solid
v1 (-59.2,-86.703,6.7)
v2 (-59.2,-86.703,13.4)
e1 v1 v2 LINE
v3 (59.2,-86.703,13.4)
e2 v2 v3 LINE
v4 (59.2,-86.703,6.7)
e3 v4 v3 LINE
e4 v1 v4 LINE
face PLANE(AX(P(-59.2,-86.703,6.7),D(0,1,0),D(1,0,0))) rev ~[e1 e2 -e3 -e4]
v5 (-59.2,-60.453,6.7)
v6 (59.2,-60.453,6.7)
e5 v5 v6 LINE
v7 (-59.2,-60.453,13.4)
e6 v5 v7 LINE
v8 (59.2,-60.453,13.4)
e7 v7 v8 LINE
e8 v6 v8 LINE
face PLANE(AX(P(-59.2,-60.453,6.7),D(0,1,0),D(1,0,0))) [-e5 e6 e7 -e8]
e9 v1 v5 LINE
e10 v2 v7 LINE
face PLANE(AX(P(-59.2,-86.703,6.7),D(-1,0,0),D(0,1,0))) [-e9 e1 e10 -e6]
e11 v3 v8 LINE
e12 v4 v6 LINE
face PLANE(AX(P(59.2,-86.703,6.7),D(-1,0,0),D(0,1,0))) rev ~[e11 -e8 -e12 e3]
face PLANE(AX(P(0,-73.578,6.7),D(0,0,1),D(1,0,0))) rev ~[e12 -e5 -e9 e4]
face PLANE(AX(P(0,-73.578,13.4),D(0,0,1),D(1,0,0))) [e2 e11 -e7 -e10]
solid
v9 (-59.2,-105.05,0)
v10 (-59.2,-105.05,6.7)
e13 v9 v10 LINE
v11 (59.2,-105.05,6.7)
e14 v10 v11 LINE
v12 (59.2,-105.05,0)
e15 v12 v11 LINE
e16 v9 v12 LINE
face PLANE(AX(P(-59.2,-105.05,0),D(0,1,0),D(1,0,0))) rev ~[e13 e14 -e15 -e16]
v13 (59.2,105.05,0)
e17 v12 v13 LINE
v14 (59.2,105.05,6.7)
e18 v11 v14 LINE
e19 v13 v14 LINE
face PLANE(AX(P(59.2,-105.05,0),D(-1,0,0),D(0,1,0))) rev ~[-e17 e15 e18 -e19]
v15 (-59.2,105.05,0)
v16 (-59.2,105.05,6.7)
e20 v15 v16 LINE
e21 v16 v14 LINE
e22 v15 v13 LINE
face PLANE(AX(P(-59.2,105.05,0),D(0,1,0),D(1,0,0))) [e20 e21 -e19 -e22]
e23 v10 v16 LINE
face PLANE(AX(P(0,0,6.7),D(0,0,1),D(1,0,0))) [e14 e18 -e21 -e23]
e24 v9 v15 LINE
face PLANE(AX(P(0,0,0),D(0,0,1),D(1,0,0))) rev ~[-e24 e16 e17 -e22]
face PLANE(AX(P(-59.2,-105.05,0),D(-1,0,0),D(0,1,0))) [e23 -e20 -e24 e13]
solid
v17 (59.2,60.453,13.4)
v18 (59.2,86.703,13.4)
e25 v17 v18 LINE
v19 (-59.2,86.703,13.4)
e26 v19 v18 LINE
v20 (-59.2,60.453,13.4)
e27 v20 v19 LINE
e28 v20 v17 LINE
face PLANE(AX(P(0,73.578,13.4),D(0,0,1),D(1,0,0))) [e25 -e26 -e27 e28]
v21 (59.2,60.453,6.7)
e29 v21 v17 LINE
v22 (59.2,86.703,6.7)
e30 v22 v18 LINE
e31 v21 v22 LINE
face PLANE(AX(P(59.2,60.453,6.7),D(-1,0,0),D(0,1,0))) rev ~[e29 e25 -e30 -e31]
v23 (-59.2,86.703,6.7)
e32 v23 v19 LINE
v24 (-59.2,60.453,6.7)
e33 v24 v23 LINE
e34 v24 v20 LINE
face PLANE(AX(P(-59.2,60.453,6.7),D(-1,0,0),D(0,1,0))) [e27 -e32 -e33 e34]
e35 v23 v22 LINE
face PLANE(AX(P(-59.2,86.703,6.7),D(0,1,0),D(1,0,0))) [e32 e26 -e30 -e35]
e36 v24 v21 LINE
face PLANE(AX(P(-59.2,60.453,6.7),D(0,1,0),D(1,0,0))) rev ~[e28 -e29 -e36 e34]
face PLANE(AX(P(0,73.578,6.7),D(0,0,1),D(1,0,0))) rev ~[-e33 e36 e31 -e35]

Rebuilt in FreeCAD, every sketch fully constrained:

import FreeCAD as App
import Part
import Sketcher
Q = App.Units.Quantity

doc = App.newDocument("Part")
body = doc.addObject("PartDesign::Body", "Body")

sketch1 = body.newObject("Sketcher::SketchObject", "Sketch")
sketch1.AttachmentSupport = (doc.getObject("XY_Plane"), [""])
sketch1.MapMode = "FlatFace"
sketch1.addGeometry([
    Part.LineSegment(App.Vector(-59, 105, 0), App.Vector(-59, -105, 0)),
    Part.LineSegment(App.Vector(-59, -105, 0), App.Vector(59, -105, 0)),
    Part.LineSegment(App.Vector(59, -105, 0), App.Vector(59, 105, 0)),
    Part.LineSegment(App.Vector(59, 105, 0), App.Vector(-59, 105, 0)),
], False)
sketch1.addConstraint([
    Sketcher.Constraint("Coincident", 0, 2, 1, 1),
    Sketcher.Constraint("Coincident", 1, 2, 2, 1),
    Sketcher.Constraint("Coincident", 2, 2, 3, 1),
    Sketcher.Constraint("Coincident", 3, 2, 0, 1),
    Sketcher.Constraint("Vertical", 0),
    Sketcher.Constraint("Horizontal", 1),
    Sketcher.Constraint("Vertical", 2),
    Sketcher.Constraint("Horizontal", 3),
    Sketcher.Constraint("Symmetric", 0, 2, 2, 2, -1, 1),
    Sketcher.Constraint("DistanceX", 1, 1, 1, 2, Q("118.4 mm")),
    Sketcher.Constraint("DistanceY", 0, 2, 0, 1, Q("210.1 mm")),
])
pad1 = body.newObject("PartDesign::Pad", "Pad")
pad1.Profile = sketch1
pad1.Length = 6.7
body2 = doc.addObject("PartDesign::Body", "Body001")

sketch2 = body2.newObject("Sketcher::SketchObject", "Sketch001")
sketch2.AttachmentSupport = (doc.getObject("XY_Plane001"), [""])
sketch2.MapMode = "FlatFace"
sketch2.AttachmentOffset = App.Placement(App.Vector(0, 0, 6.7), App.Rotation())
sketch2.addGeometry([
    Part.LineSegment(App.Vector(-59, -60, 0), App.Vector(-59, -87, 0)),
    Part.LineSegment(App.Vector(-59, -87, 0), App.Vector(59, -87, 0)),
    Part.LineSegment(App.Vector(59, -87, 0), App.Vector(59, -60, 0)),
    Part.LineSegment(App.Vector(59, -60, 0), App.Vector(-59, -60, 0)),
], False)
sketch2.addConstraint([
    Sketcher.Constraint("Coincident", 0, 2, 1, 1),
    Sketcher.Constraint("Coincident", 1, 2, 2, 1),
    Sketcher.Constraint("Coincident", 2, 2, 3, 1),
    Sketcher.Constraint("Coincident", 3, 2, 0, 1),
    Sketcher.Constraint("Vertical", 0),
    Sketcher.Constraint("Horizontal", 1),
    Sketcher.Constraint("Vertical", 2),
    Sketcher.Constraint("Horizontal", 3),
    Sketcher.Constraint("DistanceX", 1, 1, 1, 2, Q("118.4 mm")),
    Sketcher.Constraint("DistanceY", 0, 2, 0, 1, Q("26.25 mm")),
    Sketcher.Constraint("DistanceX", 0, 2, -1, 1, Q("59.2 mm")),
    Sketcher.Constraint("DistanceY", 0, 2, -1, 1, Q("86.703 mm")),
])
pad2 = body2.newObject("PartDesign::Pad", "Pad001")
pad2.Profile = sketch2
pad2.Length = 6.7
body3 = doc.addObject("PartDesign::Body", "Body002")

sketch3 = body3.newObject("Sketcher::SketchObject", "Sketch002")
sketch3.AttachmentSupport = (doc.getObject("XY_Plane002"), [""])
sketch3.MapMode = "FlatFace"
sketch3.AttachmentOffset = App.Placement(App.Vector(0, 0, 6.7), App.Rotation())
sketch3.addGeometry([
    Part.LineSegment(App.Vector(-59, 87, 0), App.Vector(-59, 60, 0)),
    Part.LineSegment(App.Vector(-59, 60, 0), App.Vector(59, 60, 0)),
    Part.LineSegment(App.Vector(59, 60, 0), App.Vector(59, 87, 0)),
    Part.LineSegment(App.Vector(59, 87, 0), App.Vector(-59, 87, 0)),
], False)
sketch3.addConstraint([
    Sketcher.Constraint("Coincident", 0, 2, 1, 1),
    Sketcher.Constraint("Coincident", 1, 2, 2, 1),
    Sketcher.Constraint("Coincident", 2, 2, 3, 1),
    Sketcher.Constraint("Coincident", 3, 2, 0, 1),
    Sketcher.Constraint("Vertical", 0),
    Sketcher.Constraint("Horizontal", 1),
    Sketcher.Constraint("Vertical", 2),
    Sketcher.Constraint("Horizontal", 3),
    Sketcher.Constraint("DistanceX", 1, 1, 1, 2, Q("118.4 mm")),
    Sketcher.Constraint("DistanceY", 0, 2, 0, 1, Q("26.25 mm")),
    Sketcher.Constraint("DistanceX", 0, 2, -1, 1, Q("59.2 mm")),
    Sketcher.Constraint("DistanceY", -1, 1, 0, 2, Q("60.453 mm")),
])
pad3 = body3.newObject("PartDesign::Pad", "Pad002")
pad3.Profile = sketch3
pad3.Length = 6.7

doc.recompute()
